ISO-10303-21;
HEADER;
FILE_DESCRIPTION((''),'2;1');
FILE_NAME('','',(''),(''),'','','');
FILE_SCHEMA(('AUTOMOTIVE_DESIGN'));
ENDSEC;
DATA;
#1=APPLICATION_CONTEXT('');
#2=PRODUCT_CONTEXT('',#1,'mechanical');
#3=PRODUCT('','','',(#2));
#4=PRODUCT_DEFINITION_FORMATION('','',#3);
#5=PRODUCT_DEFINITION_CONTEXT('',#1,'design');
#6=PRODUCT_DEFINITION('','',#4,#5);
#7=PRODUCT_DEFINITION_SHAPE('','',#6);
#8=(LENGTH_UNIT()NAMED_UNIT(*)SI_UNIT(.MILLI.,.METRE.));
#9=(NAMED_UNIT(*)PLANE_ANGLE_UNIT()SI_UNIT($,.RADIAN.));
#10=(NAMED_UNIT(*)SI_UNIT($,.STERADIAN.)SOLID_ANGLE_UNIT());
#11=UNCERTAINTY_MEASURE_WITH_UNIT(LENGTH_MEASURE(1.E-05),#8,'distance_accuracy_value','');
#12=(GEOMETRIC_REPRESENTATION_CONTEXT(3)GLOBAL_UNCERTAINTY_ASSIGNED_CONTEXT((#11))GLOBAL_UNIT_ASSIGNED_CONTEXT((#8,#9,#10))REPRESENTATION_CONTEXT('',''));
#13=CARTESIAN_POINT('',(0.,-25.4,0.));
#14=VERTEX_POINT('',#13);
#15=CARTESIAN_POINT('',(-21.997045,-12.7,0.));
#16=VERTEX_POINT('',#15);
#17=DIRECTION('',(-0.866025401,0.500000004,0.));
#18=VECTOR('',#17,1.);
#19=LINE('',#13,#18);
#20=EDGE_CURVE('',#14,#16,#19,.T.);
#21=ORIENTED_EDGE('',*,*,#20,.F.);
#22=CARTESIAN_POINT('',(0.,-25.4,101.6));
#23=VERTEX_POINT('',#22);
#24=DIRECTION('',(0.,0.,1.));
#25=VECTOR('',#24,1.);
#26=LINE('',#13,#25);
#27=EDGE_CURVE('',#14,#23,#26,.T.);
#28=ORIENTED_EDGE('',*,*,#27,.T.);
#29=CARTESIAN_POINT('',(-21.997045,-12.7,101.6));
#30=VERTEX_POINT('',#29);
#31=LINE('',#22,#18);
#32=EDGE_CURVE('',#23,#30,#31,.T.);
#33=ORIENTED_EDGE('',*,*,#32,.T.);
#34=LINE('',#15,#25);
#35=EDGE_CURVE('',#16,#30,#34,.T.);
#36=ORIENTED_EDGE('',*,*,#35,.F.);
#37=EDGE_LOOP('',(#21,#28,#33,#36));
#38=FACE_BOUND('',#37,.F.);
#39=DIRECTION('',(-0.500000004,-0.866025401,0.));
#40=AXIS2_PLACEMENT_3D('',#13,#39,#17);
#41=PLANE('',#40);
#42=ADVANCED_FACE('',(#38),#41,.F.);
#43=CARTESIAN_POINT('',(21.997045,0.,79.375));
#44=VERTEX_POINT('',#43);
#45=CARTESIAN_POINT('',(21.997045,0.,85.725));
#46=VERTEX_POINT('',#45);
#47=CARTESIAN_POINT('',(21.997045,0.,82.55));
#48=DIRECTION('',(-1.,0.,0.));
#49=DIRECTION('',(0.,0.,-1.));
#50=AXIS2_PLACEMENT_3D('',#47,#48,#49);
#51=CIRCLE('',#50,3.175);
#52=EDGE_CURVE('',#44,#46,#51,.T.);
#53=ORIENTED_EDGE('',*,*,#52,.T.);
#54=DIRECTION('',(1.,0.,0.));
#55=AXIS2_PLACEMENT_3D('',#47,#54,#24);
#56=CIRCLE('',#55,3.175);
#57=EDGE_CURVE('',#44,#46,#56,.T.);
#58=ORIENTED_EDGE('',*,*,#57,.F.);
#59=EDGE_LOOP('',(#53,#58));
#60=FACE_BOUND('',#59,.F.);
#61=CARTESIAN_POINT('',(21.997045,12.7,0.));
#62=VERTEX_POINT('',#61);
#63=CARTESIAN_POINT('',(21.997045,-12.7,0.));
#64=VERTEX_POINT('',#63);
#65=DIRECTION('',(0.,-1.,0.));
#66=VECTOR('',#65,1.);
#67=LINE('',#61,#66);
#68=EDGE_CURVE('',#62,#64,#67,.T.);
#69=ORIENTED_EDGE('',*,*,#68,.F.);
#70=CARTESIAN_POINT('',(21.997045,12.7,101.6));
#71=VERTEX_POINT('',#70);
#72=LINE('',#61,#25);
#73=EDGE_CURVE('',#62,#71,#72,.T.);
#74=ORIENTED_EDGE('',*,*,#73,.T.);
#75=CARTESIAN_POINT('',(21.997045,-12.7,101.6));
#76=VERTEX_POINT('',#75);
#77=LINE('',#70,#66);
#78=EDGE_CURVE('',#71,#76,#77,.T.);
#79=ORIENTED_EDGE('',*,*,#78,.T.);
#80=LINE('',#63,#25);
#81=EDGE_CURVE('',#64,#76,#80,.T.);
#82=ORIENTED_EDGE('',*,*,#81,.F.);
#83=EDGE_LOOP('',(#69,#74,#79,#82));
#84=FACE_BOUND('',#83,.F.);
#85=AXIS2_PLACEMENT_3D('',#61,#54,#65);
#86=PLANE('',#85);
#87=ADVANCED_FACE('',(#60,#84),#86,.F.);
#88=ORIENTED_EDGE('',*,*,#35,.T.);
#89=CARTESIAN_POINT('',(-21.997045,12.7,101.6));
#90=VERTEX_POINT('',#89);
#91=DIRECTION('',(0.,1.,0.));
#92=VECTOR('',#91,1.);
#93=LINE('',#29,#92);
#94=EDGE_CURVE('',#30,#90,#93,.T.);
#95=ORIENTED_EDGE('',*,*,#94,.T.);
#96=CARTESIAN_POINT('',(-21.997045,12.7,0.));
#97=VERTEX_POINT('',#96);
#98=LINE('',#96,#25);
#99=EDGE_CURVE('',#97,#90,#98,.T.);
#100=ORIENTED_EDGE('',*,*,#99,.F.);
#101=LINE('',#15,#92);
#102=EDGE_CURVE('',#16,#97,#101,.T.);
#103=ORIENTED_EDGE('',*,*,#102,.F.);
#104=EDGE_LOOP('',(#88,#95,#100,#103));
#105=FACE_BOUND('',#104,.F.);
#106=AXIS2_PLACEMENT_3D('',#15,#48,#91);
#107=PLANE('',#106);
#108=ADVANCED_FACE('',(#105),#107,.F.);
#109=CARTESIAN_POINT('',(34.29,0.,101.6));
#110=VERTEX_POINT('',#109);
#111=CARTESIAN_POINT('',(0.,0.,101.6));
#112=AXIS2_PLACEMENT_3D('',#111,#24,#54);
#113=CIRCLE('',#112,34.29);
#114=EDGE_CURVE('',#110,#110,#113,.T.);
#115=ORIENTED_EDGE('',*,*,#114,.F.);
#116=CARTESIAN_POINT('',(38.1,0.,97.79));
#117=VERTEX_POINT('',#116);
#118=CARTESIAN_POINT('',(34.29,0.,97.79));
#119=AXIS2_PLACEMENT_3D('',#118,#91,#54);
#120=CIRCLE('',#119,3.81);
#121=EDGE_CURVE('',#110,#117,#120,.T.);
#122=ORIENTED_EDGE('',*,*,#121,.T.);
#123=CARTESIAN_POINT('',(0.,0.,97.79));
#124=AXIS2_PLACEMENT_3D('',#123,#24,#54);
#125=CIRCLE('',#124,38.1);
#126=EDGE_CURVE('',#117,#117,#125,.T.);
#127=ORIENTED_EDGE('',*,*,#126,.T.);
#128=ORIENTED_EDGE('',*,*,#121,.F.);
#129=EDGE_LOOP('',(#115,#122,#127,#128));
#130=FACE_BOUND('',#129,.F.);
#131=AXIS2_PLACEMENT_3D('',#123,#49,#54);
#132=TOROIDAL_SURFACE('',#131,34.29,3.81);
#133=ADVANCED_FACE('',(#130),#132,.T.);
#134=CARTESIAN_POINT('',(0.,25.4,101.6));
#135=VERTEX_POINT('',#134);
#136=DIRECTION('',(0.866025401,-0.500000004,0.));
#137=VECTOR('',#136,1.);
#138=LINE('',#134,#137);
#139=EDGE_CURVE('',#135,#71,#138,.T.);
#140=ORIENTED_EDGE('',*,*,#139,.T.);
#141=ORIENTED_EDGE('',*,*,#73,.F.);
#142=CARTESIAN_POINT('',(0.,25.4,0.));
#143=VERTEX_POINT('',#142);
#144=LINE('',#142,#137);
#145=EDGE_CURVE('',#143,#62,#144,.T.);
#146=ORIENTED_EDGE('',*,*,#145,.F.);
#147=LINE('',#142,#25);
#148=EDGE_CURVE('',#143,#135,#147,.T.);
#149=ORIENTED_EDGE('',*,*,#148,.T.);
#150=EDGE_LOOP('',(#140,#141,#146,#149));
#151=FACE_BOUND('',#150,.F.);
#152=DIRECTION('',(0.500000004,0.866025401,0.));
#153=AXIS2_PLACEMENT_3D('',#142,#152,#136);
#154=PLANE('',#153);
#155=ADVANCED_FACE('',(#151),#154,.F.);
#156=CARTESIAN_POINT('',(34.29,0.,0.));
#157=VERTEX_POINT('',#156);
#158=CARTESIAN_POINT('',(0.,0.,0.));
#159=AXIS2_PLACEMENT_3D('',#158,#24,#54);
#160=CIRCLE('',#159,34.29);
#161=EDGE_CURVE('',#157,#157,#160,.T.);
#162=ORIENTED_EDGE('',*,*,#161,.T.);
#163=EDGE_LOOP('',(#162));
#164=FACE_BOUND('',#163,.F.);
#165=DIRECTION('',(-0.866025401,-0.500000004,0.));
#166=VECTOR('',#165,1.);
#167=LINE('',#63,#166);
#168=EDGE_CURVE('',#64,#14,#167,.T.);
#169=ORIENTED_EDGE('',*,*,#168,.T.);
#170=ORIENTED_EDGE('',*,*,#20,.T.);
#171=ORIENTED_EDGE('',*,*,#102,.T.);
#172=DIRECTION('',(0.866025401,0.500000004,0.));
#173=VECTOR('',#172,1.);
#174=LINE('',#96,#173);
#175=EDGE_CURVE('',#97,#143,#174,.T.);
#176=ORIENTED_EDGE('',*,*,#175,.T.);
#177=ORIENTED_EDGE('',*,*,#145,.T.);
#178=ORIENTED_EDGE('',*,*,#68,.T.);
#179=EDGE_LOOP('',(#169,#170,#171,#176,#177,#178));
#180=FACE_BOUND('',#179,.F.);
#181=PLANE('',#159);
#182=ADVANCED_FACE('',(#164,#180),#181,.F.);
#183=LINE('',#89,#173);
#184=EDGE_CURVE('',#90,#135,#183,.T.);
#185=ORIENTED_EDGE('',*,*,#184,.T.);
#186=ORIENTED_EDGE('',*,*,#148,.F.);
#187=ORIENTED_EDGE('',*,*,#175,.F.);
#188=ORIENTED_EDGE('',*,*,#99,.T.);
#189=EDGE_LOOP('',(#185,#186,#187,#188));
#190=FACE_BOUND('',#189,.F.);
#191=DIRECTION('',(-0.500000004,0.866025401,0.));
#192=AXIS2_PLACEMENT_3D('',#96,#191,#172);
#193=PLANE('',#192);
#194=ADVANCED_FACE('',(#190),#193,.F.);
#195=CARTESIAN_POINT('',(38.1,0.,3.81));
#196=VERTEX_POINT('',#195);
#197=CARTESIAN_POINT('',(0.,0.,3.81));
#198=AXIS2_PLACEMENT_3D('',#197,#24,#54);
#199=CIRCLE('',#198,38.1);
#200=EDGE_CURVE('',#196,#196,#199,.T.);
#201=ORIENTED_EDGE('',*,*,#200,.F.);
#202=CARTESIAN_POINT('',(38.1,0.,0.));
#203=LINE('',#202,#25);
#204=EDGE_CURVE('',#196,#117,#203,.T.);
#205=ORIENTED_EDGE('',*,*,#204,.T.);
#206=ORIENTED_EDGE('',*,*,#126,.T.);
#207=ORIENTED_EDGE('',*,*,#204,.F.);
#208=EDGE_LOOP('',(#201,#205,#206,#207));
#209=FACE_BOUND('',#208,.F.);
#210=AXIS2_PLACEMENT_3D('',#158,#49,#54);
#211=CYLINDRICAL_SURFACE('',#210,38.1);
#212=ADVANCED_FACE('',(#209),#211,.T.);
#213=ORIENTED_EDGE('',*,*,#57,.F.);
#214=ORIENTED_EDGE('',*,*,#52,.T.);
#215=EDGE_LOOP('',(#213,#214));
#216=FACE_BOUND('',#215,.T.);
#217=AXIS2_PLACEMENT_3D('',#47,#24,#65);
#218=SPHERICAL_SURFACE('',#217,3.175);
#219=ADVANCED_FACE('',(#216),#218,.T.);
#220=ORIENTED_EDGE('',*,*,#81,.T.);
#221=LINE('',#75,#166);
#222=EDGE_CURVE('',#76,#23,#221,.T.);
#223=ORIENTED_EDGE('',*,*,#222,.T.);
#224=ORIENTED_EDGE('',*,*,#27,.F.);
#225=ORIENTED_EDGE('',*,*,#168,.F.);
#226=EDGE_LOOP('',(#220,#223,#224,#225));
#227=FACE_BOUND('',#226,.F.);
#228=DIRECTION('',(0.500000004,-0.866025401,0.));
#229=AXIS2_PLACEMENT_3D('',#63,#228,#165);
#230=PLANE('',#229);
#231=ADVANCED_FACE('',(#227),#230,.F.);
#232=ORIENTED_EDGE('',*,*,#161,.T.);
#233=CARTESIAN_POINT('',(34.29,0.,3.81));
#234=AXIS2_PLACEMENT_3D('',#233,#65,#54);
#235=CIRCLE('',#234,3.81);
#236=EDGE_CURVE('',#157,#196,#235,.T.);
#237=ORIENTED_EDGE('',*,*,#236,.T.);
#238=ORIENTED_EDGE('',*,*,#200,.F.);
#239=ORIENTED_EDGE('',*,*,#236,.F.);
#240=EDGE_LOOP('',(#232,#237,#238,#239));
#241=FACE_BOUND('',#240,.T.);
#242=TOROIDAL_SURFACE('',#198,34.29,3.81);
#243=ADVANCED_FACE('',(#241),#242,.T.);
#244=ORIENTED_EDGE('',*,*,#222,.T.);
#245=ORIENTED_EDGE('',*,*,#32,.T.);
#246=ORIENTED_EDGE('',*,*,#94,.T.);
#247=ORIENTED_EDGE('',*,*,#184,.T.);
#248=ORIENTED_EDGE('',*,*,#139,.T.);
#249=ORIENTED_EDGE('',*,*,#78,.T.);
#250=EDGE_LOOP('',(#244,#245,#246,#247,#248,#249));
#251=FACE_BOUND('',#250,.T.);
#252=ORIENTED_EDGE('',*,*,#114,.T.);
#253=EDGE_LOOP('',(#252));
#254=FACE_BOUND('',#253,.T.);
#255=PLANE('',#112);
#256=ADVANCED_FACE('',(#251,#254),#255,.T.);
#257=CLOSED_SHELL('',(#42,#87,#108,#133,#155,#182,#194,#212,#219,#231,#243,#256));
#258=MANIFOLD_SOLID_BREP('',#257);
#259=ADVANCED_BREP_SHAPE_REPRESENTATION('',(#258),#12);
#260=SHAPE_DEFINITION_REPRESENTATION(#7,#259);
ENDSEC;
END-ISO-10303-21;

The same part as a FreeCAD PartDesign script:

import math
import FreeCAD as App
import Part
import Sketcher
from FreeCAD import Vector
Q = App.Units.Quantity


def edges_at(feature, points):
    """Names of the edges that pass closest to the given points."""
    edges = feature.Shape.Edges
    near = lambda p: min(range(len(edges)), key=lambda i: edges[i].distToShape(Part.Vertex(*p))[0])
    return sorted({f"Edge{near(p) + 1}" for p in points})


def add_polygon(sketch, points):
    """Adds a closed chain of lines whose ends are joined by coincident constraints."""
    first, n = sketch.GeometryCount, len(points)
    for a, b in zip(points, points[1:] + points[:1]):
        sketch.addGeometry(Part.LineSegment(App.Vector(*a, 0), App.Vector(*b, 0)), False)
    for i in range(n):
        sketch.addConstraint(Sketcher.Constraint("Coincident", first + i, 2, first + (i + 1) % n, 1))

doc = App.newDocument("Part")
body = doc.addObject("PartDesign::Body", "Body")

# Sketch on XY plane
sketch1 = body.newObject("Sketcher::SketchObject", "Sketch")
sketch1.AttachmentSupport = (doc.getObject("XY_Plane"), [""])
sketch1.MapMode = "FlatFace"
sketch1.addGeometry(Part.Circle(Vector(0, 0, 0), Vector(0, 0, 1), 38), False)  # 0
add_polygon(sketch1, [(-22, -13), (-22, 13), (0, 25), (22, 13), (22, -13), (0, -25)])  # lines 1-6
sketch1.addConstraint([
    Sketcher.Constraint("Vertical", 1),
    Sketcher.Constraint("Vertical", 4),
    Sketcher.Constraint("Coincident", 0, 3, -1, 1),
    Sketcher.Constraint("Symmetric", 1, 2, 4, 2, -1, 1),
    Sketcher.Constraint("Symmetric", 2, 2, 5, 2, -1, 1),
    Sketcher.Constraint("PointOnObject", 2, 2, -2),
    Sketcher.Constraint("Parallel", 3, 6),
    Sketcher.Constraint("Horizontal", 1, 2, 3, 2),
    Sketcher.Constraint("Diameter", 0, Q("3 in")),
    Sketcher.Constraint("DistanceY", 1, 1, 1, 2, Q("1 in")),
    Sketcher.Constraint("Distance", 2, Q("1 in")),
    Sketcher.Constraint("DistanceY", -1, 1, 2, 2, Q("1 in")),
])
pad1 = body.newObject("PartDesign::Pad", "Pad")
pad1.Profile = sketch1
pad1.Length = Q("4 in")

# Sketch on YZ plane
sketch2 = body.newObject("Sketcher::SketchObject", "Sketch001")
sketch2.AttachmentSupport = (doc.getObject("YZ_Plane"), [""])
sketch2.MapMode = "FlatFace"
sketch2.AttachmentOffset = App.Placement(Vector(0, 0, 21.997045), App.Rotation())
sketch2.addGeometry([
    Part.LineSegment(Vector(0, 85.7, 0), Vector(0, 79.4, 0)),
    Part.ArcOfCircle(Part.Circle(Vector(0, 82.5, 0), Vector(0, 0, 1), 3.2), math.radians(90), math.radians(270)),
], False)
sketch2.addConstraint([
    Sketcher.Constraint("Coincident", 0, 1, 1, 1),
    Sketcher.Constraint("Coincident", 1, 2, 0, 2),
    Sketcher.Constraint("Vertical", 0),
    Sketcher.Constraint("PointOnObject", 1, 3, -2),
    Sketcher.Constraint("PointOnObject", 0, 1, -2),
    Sketcher.Constraint("Radius", 1, Q("0.125 in")),
    Sketcher.Constraint("DistanceY", -1, 1, 1, 3, Q("3.25 in")),
])
revolution = body.newObject("PartDesign::Revolution", "Revolution")
revolution.Profile = sketch2
revolution.ReferenceAxis = (sketch2, ["V_Axis"])
revolution.Angle = 360
doc.recompute()

fillet = body.newObject("PartDesign::Fillet", "Fillet")
fillet.Base = (revolution, edges_at(revolution, [(-38.1, 0, 0), (-38.1, 0, 101.6)]))
fillet.Radius = Q("0.15 in")

doc.recompute()
